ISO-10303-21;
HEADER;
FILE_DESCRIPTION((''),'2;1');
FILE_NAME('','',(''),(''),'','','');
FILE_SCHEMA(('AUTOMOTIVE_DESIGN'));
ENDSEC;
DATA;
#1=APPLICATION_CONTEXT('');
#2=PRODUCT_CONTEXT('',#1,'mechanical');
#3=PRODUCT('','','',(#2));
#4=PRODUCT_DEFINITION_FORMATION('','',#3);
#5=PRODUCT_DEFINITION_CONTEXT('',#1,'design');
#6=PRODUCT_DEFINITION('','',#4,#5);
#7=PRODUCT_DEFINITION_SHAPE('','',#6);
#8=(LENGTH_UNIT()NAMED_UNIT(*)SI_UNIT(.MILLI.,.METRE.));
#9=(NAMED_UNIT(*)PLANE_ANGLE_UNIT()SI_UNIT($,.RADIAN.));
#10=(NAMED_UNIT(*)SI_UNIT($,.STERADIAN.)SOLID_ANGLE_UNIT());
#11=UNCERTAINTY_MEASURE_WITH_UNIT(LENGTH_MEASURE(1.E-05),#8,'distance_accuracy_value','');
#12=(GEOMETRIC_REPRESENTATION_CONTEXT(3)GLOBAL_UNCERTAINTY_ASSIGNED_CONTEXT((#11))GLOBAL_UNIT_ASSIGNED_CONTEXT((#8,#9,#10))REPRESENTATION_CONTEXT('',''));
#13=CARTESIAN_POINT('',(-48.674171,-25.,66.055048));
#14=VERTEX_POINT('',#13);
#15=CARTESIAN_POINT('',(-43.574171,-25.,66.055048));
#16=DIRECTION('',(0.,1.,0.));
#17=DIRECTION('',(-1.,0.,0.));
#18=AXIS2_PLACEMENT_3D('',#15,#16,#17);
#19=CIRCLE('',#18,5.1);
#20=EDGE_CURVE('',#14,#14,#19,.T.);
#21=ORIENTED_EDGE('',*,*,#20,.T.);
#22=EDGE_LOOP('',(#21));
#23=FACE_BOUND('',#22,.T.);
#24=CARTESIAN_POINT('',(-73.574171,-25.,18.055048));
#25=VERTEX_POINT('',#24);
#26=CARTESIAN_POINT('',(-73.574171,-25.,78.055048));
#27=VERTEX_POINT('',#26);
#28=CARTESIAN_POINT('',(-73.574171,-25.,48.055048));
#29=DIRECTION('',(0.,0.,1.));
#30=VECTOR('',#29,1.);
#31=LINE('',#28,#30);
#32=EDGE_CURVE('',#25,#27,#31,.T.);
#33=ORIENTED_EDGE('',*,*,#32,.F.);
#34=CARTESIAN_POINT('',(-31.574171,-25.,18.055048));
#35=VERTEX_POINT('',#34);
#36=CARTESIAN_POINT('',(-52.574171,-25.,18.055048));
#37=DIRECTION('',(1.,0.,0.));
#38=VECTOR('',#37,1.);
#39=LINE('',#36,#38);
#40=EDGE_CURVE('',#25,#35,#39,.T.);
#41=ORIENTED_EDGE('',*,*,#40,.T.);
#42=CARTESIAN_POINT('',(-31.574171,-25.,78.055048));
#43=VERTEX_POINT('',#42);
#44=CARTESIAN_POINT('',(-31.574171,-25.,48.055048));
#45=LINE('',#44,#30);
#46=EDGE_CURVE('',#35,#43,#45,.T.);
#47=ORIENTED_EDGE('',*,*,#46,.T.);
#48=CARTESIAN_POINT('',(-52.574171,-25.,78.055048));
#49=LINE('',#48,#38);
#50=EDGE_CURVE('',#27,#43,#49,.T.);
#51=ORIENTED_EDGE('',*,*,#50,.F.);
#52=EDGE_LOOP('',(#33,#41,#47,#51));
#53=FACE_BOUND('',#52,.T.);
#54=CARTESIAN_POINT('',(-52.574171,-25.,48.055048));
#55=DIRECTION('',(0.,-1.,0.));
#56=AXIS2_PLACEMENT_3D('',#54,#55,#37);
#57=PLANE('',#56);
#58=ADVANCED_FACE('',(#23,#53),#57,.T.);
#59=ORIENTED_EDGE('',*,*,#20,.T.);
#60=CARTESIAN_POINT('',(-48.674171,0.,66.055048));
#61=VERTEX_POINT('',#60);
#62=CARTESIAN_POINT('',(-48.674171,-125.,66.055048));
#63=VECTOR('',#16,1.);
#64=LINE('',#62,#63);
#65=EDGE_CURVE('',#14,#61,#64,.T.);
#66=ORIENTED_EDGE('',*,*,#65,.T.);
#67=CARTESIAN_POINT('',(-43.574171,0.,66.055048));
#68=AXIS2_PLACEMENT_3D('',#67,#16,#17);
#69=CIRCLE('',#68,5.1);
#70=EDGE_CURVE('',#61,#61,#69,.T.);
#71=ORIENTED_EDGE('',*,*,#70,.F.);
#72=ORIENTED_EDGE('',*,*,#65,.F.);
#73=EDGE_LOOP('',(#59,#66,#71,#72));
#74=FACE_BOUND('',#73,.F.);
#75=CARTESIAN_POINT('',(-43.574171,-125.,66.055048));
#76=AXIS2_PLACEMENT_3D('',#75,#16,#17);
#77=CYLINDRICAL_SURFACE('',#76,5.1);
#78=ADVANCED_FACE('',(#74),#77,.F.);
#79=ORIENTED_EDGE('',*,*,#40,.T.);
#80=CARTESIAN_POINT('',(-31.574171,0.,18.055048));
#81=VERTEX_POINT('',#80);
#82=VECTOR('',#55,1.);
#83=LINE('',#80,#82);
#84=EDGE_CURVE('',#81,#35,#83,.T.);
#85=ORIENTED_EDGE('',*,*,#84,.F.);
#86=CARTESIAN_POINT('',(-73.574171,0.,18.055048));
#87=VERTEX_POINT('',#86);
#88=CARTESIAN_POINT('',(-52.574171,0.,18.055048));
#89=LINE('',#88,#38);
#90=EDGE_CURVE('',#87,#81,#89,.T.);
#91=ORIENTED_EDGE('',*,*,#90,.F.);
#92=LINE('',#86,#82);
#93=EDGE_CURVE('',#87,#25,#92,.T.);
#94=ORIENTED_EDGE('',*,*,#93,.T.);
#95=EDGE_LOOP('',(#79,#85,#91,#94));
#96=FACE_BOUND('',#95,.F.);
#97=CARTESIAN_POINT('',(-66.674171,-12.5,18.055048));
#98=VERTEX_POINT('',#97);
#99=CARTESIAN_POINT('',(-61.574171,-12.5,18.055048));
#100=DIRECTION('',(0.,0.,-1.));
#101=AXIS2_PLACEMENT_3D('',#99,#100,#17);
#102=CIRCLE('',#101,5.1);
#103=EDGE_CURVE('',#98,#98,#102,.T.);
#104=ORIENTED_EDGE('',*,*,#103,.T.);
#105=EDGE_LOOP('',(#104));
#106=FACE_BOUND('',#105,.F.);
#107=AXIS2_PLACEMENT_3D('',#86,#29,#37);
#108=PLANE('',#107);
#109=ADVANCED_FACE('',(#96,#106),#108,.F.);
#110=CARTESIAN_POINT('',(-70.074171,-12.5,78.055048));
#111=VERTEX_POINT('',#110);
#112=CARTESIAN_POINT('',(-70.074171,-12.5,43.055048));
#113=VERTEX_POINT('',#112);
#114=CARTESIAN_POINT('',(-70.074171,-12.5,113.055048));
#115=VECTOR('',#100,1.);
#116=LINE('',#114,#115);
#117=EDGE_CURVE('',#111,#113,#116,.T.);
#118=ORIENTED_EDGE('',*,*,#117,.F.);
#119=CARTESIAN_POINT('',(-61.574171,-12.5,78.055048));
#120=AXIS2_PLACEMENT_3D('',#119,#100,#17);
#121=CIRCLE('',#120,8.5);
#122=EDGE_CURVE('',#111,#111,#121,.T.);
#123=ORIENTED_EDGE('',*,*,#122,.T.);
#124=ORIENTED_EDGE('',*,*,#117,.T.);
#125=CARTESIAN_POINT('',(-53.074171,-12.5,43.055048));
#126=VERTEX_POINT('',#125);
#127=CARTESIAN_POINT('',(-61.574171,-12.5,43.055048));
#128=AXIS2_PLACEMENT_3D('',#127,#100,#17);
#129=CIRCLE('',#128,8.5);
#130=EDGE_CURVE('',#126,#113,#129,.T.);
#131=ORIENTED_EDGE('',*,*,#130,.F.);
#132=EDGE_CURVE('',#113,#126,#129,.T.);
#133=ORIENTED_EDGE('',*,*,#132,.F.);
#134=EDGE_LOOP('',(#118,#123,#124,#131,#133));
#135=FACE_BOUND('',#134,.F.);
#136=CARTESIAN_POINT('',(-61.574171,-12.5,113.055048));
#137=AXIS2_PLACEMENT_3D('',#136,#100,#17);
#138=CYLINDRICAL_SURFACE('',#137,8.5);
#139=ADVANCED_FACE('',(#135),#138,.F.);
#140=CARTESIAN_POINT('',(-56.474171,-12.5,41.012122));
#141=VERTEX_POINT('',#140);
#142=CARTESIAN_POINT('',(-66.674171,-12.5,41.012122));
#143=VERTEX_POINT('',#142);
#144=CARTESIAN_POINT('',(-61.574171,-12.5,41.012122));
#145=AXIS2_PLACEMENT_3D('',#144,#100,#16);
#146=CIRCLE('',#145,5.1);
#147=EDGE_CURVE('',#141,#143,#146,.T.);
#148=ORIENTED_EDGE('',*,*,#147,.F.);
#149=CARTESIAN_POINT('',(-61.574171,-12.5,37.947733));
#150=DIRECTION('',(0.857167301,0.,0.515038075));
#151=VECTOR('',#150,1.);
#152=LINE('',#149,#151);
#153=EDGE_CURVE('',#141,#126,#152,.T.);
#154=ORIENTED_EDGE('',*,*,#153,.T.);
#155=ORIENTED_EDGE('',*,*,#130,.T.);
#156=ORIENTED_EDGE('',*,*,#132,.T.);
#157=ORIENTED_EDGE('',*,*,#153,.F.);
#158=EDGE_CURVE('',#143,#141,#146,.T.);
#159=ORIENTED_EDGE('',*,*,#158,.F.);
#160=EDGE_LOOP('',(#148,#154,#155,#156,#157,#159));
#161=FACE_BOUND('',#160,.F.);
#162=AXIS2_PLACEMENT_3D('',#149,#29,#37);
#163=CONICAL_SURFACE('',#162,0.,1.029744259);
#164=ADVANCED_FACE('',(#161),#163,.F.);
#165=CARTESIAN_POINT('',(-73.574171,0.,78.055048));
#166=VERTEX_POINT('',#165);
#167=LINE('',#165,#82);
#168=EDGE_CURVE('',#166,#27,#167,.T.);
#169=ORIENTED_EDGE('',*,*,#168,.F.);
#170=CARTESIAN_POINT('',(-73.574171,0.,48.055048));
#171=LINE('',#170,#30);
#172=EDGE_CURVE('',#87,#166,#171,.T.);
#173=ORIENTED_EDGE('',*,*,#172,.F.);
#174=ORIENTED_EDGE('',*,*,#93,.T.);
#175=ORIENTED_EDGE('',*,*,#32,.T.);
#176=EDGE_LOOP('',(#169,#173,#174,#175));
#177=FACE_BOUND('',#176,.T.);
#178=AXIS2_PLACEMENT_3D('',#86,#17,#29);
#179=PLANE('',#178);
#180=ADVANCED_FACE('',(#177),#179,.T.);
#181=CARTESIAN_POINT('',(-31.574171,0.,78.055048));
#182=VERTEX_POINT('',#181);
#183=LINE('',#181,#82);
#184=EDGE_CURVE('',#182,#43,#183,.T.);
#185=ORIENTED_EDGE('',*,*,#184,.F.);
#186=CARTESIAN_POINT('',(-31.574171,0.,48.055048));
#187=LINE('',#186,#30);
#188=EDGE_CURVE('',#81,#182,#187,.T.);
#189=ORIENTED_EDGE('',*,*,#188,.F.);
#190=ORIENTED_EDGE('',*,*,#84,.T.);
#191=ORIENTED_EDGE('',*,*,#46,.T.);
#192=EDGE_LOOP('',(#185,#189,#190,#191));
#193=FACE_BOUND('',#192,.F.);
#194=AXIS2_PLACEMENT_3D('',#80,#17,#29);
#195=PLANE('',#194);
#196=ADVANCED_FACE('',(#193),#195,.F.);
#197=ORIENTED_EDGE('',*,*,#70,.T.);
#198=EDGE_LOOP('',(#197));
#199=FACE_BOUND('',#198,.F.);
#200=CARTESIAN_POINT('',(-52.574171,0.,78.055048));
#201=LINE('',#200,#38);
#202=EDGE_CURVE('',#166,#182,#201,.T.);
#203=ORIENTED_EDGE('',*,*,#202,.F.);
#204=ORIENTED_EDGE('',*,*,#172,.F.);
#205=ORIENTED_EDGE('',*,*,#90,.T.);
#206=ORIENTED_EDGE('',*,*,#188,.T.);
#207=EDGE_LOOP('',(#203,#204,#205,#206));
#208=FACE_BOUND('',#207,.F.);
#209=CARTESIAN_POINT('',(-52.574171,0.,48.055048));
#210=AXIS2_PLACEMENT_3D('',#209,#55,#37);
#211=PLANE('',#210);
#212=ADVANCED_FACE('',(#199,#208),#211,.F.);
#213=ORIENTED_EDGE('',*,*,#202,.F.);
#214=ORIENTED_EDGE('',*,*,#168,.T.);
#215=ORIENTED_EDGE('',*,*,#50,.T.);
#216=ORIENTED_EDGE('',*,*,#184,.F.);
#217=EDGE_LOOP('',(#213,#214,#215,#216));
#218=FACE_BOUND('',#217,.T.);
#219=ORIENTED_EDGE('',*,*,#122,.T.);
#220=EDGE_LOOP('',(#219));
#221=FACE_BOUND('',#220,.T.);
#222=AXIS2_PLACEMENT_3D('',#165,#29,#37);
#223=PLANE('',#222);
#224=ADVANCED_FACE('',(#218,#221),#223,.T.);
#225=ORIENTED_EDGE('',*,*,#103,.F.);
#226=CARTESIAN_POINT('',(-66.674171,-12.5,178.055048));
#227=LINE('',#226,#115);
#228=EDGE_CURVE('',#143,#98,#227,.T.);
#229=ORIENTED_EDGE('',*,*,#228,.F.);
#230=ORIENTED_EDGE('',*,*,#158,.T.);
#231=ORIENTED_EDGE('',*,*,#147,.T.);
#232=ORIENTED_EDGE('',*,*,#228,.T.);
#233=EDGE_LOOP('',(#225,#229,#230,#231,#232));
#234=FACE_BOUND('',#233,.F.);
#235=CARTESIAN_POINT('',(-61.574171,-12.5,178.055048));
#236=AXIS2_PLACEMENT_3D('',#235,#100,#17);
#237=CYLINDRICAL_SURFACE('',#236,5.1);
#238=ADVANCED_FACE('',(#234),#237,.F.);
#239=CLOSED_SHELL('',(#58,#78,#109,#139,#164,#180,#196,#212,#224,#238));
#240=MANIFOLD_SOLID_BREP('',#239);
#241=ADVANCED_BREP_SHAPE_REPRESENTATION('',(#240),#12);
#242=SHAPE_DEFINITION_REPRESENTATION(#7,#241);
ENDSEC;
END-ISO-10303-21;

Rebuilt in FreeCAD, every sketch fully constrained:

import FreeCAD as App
import Part
import Sketcher
from FreeCAD import Vector


def add_polygon(sketch, points):
    """Adds a closed chain of lines whose ends are joined by coincident constraints."""
    first, n = sketch.GeometryCount, len(points)
    for a, b in zip(points, points[1:] + points[:1]):
        sketch.addGeometry(Part.LineSegment(App.Vector(*a, 0), App.Vector(*b, 0)), False)
    for i in range(n):
        sketch.addConstraint(Sketcher.Constraint("Coincident", first + i, 2, first + (i + 1) % n, 1))

doc = App.newDocument("Part")
params = doc.addObject("Spreadsheet::Sheet", "Params")
for row, (alias, value) in enumerate([
    ("sketch1_width", "42 mm"),
    ("sketch1_height", "60 mm"),
    ("pad1_length", "25 mm"),
    ("sketch2_diameter", "10.2 mm"),
    ("hole_diameter", "10.2 mm"),
    ("hole_depth", "100 mm"),
    ("sketch3_diameter", "10.2 mm"),
    ("hole2_diameter", "10.2 mm"),
    ("hole2_depth", "100 mm"),
    ("sketch4_diameter", "17 mm"),
    ("hole3_diameter", "17 mm"),
    ("hole3_depth", "35 mm"),
], start=1):
    params.set(f"A{row}", alias)
    params.set(f"B{row}", "=" + value)
    params.setAlias(f"B{row}", alias)

body = doc.addObject("PartDesign::Body", "Body")

# Sketch on XZ plane
sketch1 = body.newObject("Sketcher::SketchObject", "Sketch")
sketch1.AttachmentSupport = (doc.getObject("XZ_Plane"), [""])
sketch1.MapMode = "FlatFace"
add_polygon(sketch1, [(-74, 78), (-74, 18), (-32, 18), (-32, 78)])  # lines 0-3
sketch1.addConstraint([
    Sketcher.Constraint("Vertical", 0),
    Sketcher.Constraint("Horizontal", 1),
    Sketcher.Constraint("Vertical", 2),
    Sketcher.Constraint("Horizontal", 3),
    Sketcher.Constraint("DistanceX", 1, 1, 1, 2, 42.0),
    Sketcher.Constraint("DistanceY", 0, 2, 0, 1, 60.0),
    Sketcher.Constraint("DistanceX", 0, 2, -1, 1, 73.574171),
    Sketcher.Constraint("DistanceY", -1, 1, 0, 2, 18.055048),
])
sketch1.setExpression("Constraints[8]", "Params.sketch1_width")
sketch1.setExpression("Constraints[9]", "Params.sketch1_height")
pad1 = body.newObject("PartDesign::Pad", "Pad")
pad1.Profile = sketch1
pad1.setExpression("Length", "Params.pad1_length")

# Sketch on XZ plane
sketch2 = body.newObject("Sketcher::SketchObject", "Sketch001")
sketch2.AttachmentSupport = (doc.getObject("XZ_Plane"), [""])
sketch2.MapMode = "FlatFace"
sketch2.AttachmentOffset = App.Placement(Vector(0, 0, 25), App.Rotation())
sketch2.addGeometry(Part.Circle(Vector(-44, 66, 0), Vector(0, 0, 1), 5), False)
sketch2.addConstraint([
    Sketcher.Constraint("Diameter", 0, 10.2),
    Sketcher.Constraint("DistanceX", 0, 3, -1, 1, 43.574171),
    Sketcher.Constraint("DistanceY", -1, 1, 0, 3, 66.055048),
])
sketch2.setExpression("Constraints[0]", "Params.sketch2_diameter")
doc.recompute()
hole = body.newObject("PartDesign::Hole", "Hole")
hole.Profile = sketch2
hole.ThreadType = "None"
hole.setExpression("Diameter", "Params.hole_diameter")
hole.DepthType = "Dimension"
hole.setExpression("Depth", "Params.hole_depth")
hole.DrillPoint = "Angled"
hole.DrillPointAngle = 118

# Sketch on XY plane
sketch3 = body.newObject("Sketcher::SketchObject", "Sketch002")
sketch3.AttachmentSupport = (doc.getObject("XY_Plane"), [""])
sketch3.MapMode = "FlatFace"
sketch3.AttachmentOffset = App.Placement(Vector(0, 0, 78.055048), App.Rotation())
sketch3.addGeometry(Part.Circle(Vector(-62, -12, 0), Vector(0, 0, 1), 5), False)
sketch3.addConstraint([
    Sketcher.Constraint("Diameter", 0, 10.2),
    Sketcher.Constraint("DistanceY", 0, 3, -1, 1, 12.5),
    Sketcher.Constraint("DistanceX", 0, 3, -1, 1, 61.574171),
])
sketch3.setExpression("Constraints[0]", "Params.sketch3_diameter")
doc.recompute()
hole2 = body.newObject("PartDesign::Hole", "Hole001")
hole2.Profile = sketch3
hole2.ThreadType = "None"
hole2.setExpression("Diameter", "Params.hole2_diameter")
hole2.DepthType = "Dimension"
hole2.setExpression("Depth", "Params.hole2_depth")
hole2.DrillPoint = "Angled"
hole2.DrillPointAngle = 118

# Sketch on XY plane
sketch4 = body.newObject("Sketcher::SketchObject", "Sketch003")
sketch4.AttachmentSupport = (doc.getObject("XY_Plane"), [""])
sketch4.MapMode = "FlatFace"
sketch4.AttachmentOffset = App.Placement(Vector(0, 0, 78.055048), App.Rotation())
sketch4.addGeometry(Part.Circle(Vector(-62, -12, 0), Vector(0, 0, 1), 8), False)
sketch4.addConstraint([
    Sketcher.Constraint("Diameter", 0, 17.0),
    Sketcher.Constraint("DistanceY", 0, 3, -1, 1, 12.5),
    Sketcher.Constraint("DistanceX", 0, 3, -1, 1, 61.574171),
])
sketch4.setExpression("Constraints[0]", "Params.sketch4_diameter")
doc.recompute()
hole3 = body.newObject("PartDesign::Hole", "Hole002")
hole3.Profile = sketch4
hole3.ThreadType = "None"
hole3.setExpression("Diameter", "Params.hole3_diameter")
hole3.DepthType = "Dimension"
hole3.setExpression("Depth", "Params.hole3_depth")
hole3.DrillPoint = "Angled"
hole3.DrillPointAngle = 118

doc.recompute()
